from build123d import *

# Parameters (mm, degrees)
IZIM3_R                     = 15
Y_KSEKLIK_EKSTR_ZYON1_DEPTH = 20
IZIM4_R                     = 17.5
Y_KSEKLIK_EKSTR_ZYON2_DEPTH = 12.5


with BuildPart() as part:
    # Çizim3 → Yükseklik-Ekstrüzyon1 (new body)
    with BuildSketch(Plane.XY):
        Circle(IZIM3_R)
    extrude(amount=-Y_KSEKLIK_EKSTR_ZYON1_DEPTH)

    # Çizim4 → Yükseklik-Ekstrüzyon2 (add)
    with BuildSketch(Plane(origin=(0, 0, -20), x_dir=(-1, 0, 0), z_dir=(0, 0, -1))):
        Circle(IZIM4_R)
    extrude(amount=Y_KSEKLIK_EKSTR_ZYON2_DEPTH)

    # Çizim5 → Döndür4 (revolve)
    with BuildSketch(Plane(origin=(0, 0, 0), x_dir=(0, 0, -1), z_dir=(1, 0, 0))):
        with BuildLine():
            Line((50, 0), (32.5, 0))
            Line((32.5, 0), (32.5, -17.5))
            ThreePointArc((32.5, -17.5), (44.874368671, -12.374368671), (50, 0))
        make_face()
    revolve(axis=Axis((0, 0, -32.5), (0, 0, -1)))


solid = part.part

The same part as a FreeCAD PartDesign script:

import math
import FreeCAD as App
import Part
import Sketcher

V = App.Vector
Q = App.Units.Quantity

doc = App.newDocument("Part")
body = doc.addObject("PartDesign::Body", "Body")

# Sketch on XY plane
sketch1 = body.newObject("Sketcher::SketchObject", "Sketch")
sketch1.AttachmentSupport = (doc.getObject("XY_Plane"), [""])
sketch1.MapMode = "FlatFace"
sketch1.addGeometry(Part.Circle(V(0, 0, 0), V(0, 0, 1), 15), False)
sketch1.addConstraint(Sketcher.Constraint("Coincident", 0, 3, -1, 1))
sketch1.addConstraint(Sketcher.Constraint("Diameter", 0, Q("30 mm")))
pad1 = body.newObject("PartDesign::Pad", "Pad")
pad1.Profile = sketch1
pad1.Length = 20
pad1.Reversed = True

# Sketch on XY plane
sketch2 = body.newObject("Sketcher::SketchObject", "Sketch001")
sketch2.AttachmentSupport = (doc.getObject("XY_Plane"), [""])
sketch2.MapMode = "FlatFace"
sketch2.AttachmentOffset = App.Placement(V(0, 0, -20), App.Rotation())
sketch2.addGeometry(Part.Circle(V(0, 0, 0), V(0, 0, 1), 18), False)
sketch2.addConstraint(Sketcher.Constraint("Coincident", 0, 3, -1, 1))
sketch2.addConstraint(Sketcher.Constraint("Diameter", 0, Q("35 mm")))
pad2 = body.newObject("PartDesign::Pad", "Pad001")
pad2.Profile = sketch2
pad2.Length = 12.5
pad2.Reversed = True

# Sketch on YZ plane
sketch3 = body.newObject("Sketcher::SketchObject", "Sketch002")
sketch3.AttachmentSupport = (doc.getObject("YZ_Plane"), [""])
sketch3.MapMode = "FlatFace"
sketch3.addGeometry(Part.LineSegment(V(0, -50, 0), V(0, -32, 0)), False)
sketch3.addGeometry(Part.LineSegment(V(0, -32, 0), V(-18, -32, 0)), False)
sketch3.addGeometry(Part.ArcOfCircle(Part.Circle(V(0, -33, 0), V(0, 0, 1), 17), math.radians(180), math.radians(270)), False)
sketch3.addConstraint(Sketcher.Constraint("Coincident", 0, 2, 1, 1))
sketch3.addConstraint(Sketcher.Constraint("Coincident", 1, 2, 2, 1))
sketch3.addConstraint(Sketcher.Constraint("Coincident", 2, 2, 0, 1))
sketch3.addConstraint(Sketcher.Constraint("Vertical", 0))
sketch3.addConstraint(Sketcher.Constraint("Horizontal", 1))
sketch3.addConstraint(Sketcher.Constraint("Coincident", 0, 2, 2, 3))
sketch3.addConstraint(Sketcher.Constraint("PointOnObject", 2, 3, -2))
sketch3.addConstraint(Sketcher.Constraint("Radius", 2, Q("17.5 mm")))
sketch3.addConstraint(Sketcher.Constraint("DistanceY", 2, 2, -1, 1, Q("50 mm")))
revolution = body.newObject("PartDesign::Revolution", "Revolution")
revolution.Profile = sketch3
revolution.ReferenceAxis = (sketch3, ["V_Axis"])
revolution.Angle = 360

doc.recompute()
